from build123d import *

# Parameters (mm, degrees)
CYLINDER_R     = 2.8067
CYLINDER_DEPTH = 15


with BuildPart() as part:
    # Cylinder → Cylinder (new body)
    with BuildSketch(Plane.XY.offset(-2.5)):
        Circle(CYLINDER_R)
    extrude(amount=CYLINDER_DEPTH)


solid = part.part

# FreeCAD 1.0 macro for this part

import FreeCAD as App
import Part
import Sketcher
from FreeCAD import Vector
Q = App.Units.Quantity

doc = App.newDocument("Part")
body = doc.addObject("PartDesign::Body", "Body")

sketch1 = body.newObject("Sketcher::SketchObject", "Sketch")
sketch1.AttachmentSupport = (doc.getObject("XY_Plane"), [""])
sketch1.MapMode = "FlatFace"
sketch1.AttachmentOffset = App.Placement(Vector(0, 0, -2.5), App.Rotation())
sketch1.addGeometry(Part.Circle(Vector(0, 0, 0), Vector(0, 0, 1), 2.8), False)
sketch1.addConstraint([
    Sketcher.Constraint("Coincident", 0, 3, -1, 1),
    Sketcher.Constraint("Diameter", 0, Q("5.6134 mm")),
])
pad1 = body.newObject("PartDesign::Pad", "Pad")
pad1.Profile = sketch1
pad1.Length = 15

doc.recompute()
